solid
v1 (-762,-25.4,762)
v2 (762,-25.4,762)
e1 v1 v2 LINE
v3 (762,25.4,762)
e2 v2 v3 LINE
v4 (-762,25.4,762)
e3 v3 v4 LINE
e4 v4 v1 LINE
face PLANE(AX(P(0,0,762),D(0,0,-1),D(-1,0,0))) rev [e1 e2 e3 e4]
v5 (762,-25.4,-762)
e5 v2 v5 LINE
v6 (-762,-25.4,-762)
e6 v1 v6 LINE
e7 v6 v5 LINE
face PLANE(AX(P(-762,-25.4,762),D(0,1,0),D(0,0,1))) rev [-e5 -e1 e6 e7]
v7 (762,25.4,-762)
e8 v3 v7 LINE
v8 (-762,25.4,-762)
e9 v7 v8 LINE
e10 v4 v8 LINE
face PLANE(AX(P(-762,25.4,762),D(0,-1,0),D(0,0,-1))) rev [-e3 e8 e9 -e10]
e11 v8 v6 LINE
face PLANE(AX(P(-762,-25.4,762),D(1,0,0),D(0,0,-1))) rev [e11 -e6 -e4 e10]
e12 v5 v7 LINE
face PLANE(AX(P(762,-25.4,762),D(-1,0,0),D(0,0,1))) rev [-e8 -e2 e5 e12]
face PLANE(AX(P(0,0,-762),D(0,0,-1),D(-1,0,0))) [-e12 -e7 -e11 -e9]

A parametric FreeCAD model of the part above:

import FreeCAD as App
import Part
import Sketcher
Q = App.Units.Quantity


def add_polygon(sketch, points):
    """Adds a closed chain of lines whose ends are joined by coincident constraints."""
    first, n = sketch.GeometryCount, len(points)
    for a, b in zip(points, points[1:] + points[:1]):
        sketch.addGeometry(Part.LineSegment(App.Vector(*a, 0), App.Vector(*b, 0)), False)
    for i in range(n):
        sketch.addConstraint(Sketcher.Constraint("Coincident", first + i, 2, first + (i + 1) % n, 1))

doc = App.newDocument("Part")
body = doc.addObject("PartDesign::Body", "Body")

sketch1 = body.newObject("Sketcher::SketchObject", "Sketch")
sketch1.AttachmentSupport = (doc.getObject("XY_Plane"), [""])
sketch1.MapMode = "FlatFace"
add_polygon(sketch1, [(-762, 25.4), (-762, -25.4), (762, -25.4), (762, 25.4)])
sketch1.addConstraint([
    Sketcher.Constraint("Vertical", 0),
    Sketcher.Constraint("Horizontal", 1),
    Sketcher.Constraint("Vertical", 2),
    Sketcher.Constraint("Horizontal", 3),
    Sketcher.Constraint("Symmetric", 0, 2, 2, 2, -1, 1),
    Sketcher.Constraint("DistanceX", 1, 1, 1, 2, Q("60 in")),
    Sketcher.Constraint("DistanceY", 0, 2, 0, 1, Q("2 in")),
])
pad1 = body.newObject("PartDesign::Pad", "Pad")
pad1.Profile = sketch1
pad1.Length = Q("60 in")
pad1.Midplane = True

doc.recompute()
